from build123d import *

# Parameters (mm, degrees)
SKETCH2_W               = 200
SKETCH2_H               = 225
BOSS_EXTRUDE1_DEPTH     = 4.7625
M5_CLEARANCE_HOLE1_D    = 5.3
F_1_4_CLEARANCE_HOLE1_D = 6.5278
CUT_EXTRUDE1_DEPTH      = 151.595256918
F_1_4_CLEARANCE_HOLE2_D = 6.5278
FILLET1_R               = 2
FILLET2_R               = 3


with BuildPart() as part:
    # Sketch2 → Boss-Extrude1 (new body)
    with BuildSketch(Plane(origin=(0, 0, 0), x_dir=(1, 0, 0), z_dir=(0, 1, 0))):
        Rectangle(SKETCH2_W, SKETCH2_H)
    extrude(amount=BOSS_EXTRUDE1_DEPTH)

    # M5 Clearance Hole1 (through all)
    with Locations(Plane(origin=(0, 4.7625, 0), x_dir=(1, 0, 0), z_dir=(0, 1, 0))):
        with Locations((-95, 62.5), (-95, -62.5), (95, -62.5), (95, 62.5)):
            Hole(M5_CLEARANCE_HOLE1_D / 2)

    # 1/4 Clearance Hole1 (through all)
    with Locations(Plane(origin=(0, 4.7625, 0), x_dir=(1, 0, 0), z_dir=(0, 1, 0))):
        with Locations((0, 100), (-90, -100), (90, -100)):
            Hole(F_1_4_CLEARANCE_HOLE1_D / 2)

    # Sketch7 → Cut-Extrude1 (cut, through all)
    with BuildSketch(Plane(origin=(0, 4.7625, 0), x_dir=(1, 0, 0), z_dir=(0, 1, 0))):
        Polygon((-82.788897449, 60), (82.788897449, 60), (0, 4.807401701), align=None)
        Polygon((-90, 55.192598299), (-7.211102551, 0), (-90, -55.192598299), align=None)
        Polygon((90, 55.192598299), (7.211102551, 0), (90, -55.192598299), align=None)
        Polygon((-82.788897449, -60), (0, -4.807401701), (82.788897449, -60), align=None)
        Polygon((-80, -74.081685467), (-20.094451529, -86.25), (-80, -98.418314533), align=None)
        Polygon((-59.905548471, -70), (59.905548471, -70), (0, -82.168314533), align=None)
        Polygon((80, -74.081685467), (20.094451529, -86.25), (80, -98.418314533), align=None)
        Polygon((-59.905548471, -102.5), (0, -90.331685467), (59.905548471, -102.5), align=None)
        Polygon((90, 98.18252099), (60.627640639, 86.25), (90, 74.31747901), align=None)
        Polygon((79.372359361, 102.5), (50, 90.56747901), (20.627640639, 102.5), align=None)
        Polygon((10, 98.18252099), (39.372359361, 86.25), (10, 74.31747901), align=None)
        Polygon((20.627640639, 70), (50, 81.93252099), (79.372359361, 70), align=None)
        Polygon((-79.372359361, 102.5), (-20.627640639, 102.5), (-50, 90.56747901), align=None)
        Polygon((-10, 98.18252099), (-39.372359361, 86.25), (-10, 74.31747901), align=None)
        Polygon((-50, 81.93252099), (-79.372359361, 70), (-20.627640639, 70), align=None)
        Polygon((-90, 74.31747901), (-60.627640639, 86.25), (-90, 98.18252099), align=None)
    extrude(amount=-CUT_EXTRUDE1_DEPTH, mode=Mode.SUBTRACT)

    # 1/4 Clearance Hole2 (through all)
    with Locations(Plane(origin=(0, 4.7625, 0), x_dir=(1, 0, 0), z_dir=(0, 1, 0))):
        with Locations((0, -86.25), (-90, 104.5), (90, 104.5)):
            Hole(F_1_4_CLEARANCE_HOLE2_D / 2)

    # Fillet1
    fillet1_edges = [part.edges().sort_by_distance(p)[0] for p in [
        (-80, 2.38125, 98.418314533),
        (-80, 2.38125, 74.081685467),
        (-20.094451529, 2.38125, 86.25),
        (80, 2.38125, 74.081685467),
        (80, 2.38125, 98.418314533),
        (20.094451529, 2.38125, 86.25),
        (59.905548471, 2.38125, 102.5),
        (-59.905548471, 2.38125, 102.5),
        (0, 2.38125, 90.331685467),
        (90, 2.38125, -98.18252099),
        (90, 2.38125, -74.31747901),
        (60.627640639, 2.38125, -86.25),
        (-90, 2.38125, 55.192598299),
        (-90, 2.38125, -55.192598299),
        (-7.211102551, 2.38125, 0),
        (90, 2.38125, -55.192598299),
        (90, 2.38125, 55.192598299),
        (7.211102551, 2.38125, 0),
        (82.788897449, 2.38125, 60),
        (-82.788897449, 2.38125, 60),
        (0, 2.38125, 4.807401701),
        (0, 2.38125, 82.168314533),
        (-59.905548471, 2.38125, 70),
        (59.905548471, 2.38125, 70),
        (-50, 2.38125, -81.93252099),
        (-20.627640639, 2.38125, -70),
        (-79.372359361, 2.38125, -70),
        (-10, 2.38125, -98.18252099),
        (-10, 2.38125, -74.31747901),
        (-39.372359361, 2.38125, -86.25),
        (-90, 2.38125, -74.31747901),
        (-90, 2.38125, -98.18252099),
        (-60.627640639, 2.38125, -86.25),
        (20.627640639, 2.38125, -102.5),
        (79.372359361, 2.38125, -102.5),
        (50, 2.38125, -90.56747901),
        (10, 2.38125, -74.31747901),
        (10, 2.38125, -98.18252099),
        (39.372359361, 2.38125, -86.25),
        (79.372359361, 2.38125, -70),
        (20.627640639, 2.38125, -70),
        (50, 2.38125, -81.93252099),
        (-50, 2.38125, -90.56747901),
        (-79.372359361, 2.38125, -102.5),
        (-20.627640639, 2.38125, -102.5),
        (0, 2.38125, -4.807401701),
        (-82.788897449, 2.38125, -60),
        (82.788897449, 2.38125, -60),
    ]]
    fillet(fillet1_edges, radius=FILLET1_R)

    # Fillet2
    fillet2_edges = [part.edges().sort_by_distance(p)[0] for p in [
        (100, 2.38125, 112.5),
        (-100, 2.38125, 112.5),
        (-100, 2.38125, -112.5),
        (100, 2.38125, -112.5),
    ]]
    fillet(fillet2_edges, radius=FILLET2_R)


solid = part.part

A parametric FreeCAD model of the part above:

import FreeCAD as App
import Part
import Sketcher
from FreeCAD import Vector


def edges_at(feature, points):
    """Names of the edges that pass closest to the given points."""
    edges = feature.Shape.Edges
    near = lambda p: min(range(len(edges)), key=lambda i: edges[i].distToShape(Part.Vertex(*p))[0])
    return sorted({f"Edge{near(p) + 1}" for p in points})

doc = App.newDocument("Part")
body = doc.addObject("PartDesign::Body", "Body")

sketch1 = body.newObject("Sketcher::SketchObject", "Sketch")
sketch1.AttachmentSupport = (doc.getObject("XZ_Plane"), [""])
sketch1.MapMode = "FlatFace"
sketch1.addGeometry(Part.LineSegment(Vector(-100, -112, 0), Vector(-100, 112, 0)), False)
sketch1.addGeometry(Part.LineSegment(Vector(-100, 112, 0), Vector(100, 112, 0)), False)
sketch1.addGeometry(Part.LineSegment(Vector(100, 112, 0), Vector(100, -112, 0)), False)
sketch1.addGeometry(Part.LineSegment(Vector(100, -112, 0), Vector(-100, -112, 0)), False)
sketch1.addConstraint(Sketcher.Constraint("Coincident", 0, 2, 1, 1))
sketch1.addConstraint(Sketcher.Constraint("Coincident", 1, 2, 2, 1))
sketch1.addConstraint(Sketcher.Constraint("Coincident", 2, 2, 3, 1))
sketch1.addConstraint(Sketcher.Constraint("Coincident", 3, 2, 0, 1))
sketch1.addConstraint(Sketcher.Constraint("Vertical", 0))
sketch1.addConstraint(Sketcher.Constraint("Horizontal", 1))
sketch1.addConstraint(Sketcher.Constraint("Vertical", 2))
sketch1.addConstraint(Sketcher.Constraint("Horizontal", 3))
sketch1.addConstraint(Sketcher.Constraint("Symmetric", 0, 2, 2, 2, -1, 1))
sketch1.addConstraint(Sketcher.Constraint("DistanceX", 1, 1, 1, 2, 200.0))
sketch1.addConstraint(Sketcher.Constraint("DistanceY", 0, 1, 0, 2, 225.0))
pad1 = body.newObject("PartDesign::Pad", "Pad")
pad1.Profile = sketch1
pad1.Length = 4.7625
pad1.Reversed = True

sketch2 = body.newObject("Sketcher::SketchObject", "Sketch001")
sketch2.AttachmentSupport = (doc.getObject("XZ_Plane"), [""])
sketch2.MapMode = "FlatFace"
sketch2.AttachmentOffset = App.Placement(Vector(0, 0, -4.7625), App.Rotation())
sketch2.addGeometry(Part.Circle(Vector(-95, -62.5, 0), Vector(0, 0, 1), 2.6), False)
sketch2.addGeometry(Part.Circle(Vector(-95, 62.5, 0), Vector(0, 0, 1), 2.6), False)
sketch2.addGeometry(Part.Circle(Vector(95, 62.5, 0), Vector(0, 0, 1), 2.6), False)
sketch2.addGeometry(Part.Circle(Vector(95, -62.5, 0), Vector(0, 0, 1), 2.6), False)
sketch2.addConstraint(Sketcher.Constraint("Equal", 0, 1))
sketch2.addConstraint(Sketcher.Constraint("Equal", 1, 2))
sketch2.addConstraint(Sketcher.Constraint("Equal", 2, 3))
sketch2.addConstraint(Sketcher.Constraint("Symmetric", 0, 3, 2, 3, -1, 1))
sketch2.addConstraint(Sketcher.Constraint("Symmetric", 1, 3, 3, 3, -1, 1))
sketch2.addConstraint(Sketcher.Constraint("Symmetric", 1, 3, 2, 3, -2))
sketch2.addConstraint(Sketcher.Constraint("Diameter", 0, 5.3))
sketch2.addConstraint(Sketcher.Constraint("DistanceX", 0, 3, -1, 1, 95.0))
sketch2.addConstraint(Sketcher.Constraint("DistanceY", 0, 3, 1, 3, 125.0))
doc.recompute()
hole = body.newObject("PartDesign::Hole", "Hole")
hole.Profile = sketch2
hole.ThreadType = "None"
hole.Diameter = 5.3
hole.DepthType = "ThroughAll"
hole.Reversed = True

sketch3 = body.newObject("Sketcher::SketchObject", "Sketch002")
sketch3.AttachmentSupport = (doc.getObject("XZ_Plane"), [""])
sketch3.MapMode = "FlatFace"
sketch3.AttachmentOffset = App.Placement(Vector(0, 0, -4.7625), App.Rotation())
sketch3.addGeometry(Part.Circle(Vector(0, -100, 0), Vector(0, 0, 1), 3.3), False)
sketch3.addGeometry(Part.Circle(Vector(-90, 100, 0), Vector(0, 0, 1), 3.3), False)
sketch3.addGeometry(Part.Circle(Vector(90, 100, 0), Vector(0, 0, 1), 3.3), False)
sketch3.addConstraint(Sketcher.Constraint("Equal", 0, 1))
sketch3.addConstraint(Sketcher.Constraint("Equal", 1, 2))
sketch3.addConstraint(Sketcher.Constraint("Symmetric", 1, 3, 2, 3, -2))
sketch3.addConstraint(Sketcher.Constraint("PointOnObject", 0, 3, -2))
sketch3.addConstraint(Sketcher.Constraint("DistanceY", 0, 3, -1, 1, 100.0))
sketch3.addConstraint(Sketcher.Constraint("DistanceX", 1, 3, -1, 1, 90.0))
sketch3.addConstraint(Sketcher.Constraint("DistanceY", -1, 1, 1, 3, 100.0))
sketch3.addConstraint(Sketcher.Constraint("Diameter", 0, 6.5278))
doc.recompute()
hole2 = body.newObject("PartDesign::Hole", "Hole001")
hole2.Profile = sketch3
hole2.ThreadType = "None"
hole2.Diameter = 6.5278
hole2.DepthType = "ThroughAll"
hole2.Reversed = True

sketch4 = body.newObject("Sketcher::SketchObject", "Sketch003")
sketch4.AttachmentSupport = (doc.getObject("XZ_Plane"), [""])
sketch4.MapMode = "FlatFace"
sketch4.AttachmentOffset = App.Placement(Vector(0, 0, -4.7625), App.Rotation())
sketch4.addGeometry(Part.LineSegment(Vector(83, -60, 0), Vector(-83, -60, 0)), False)
sketch4.addGeometry(Part.LineSegment(Vector(-83, -60, 0), Vector(0, -5, 0)), False)
sketch4.addGeometry(Part.LineSegment(Vector(0, -5, 0), Vector(83, -60, 0)), False)
sketch4.addGeometry(Part.LineSegment(Vector(-7, 0, 0), Vector(-90, -55, 0)), False)
sketch4.addGeometry(Part.LineSegment(Vector(-90, -55, 0), Vector(-90, 55, 0)), False)
sketch4.addGeometry(Part.LineSegment(Vector(-90, 55, 0), Vector(-7, 0, 0)), False)
sketch4.addGeometry(Part.LineSegment(Vector(90, -55, 0), Vector(7, 0, 0)), False)
sketch4.addGeometry(Part.LineSegment(Vector(7, 0, 0), Vector(90, 55, 0)), False)
sketch4.addGeometry(Part.LineSegment(Vector(90, 55, 0), Vector(90, -55, 0)), False)
sketch4.addGeometry(Part.LineSegment(Vector(0, 5, 0), Vector(-83, 60, 0)), False)
sketch4.addGeometry(Part.LineSegment(Vector(-83, 60, 0), Vector(83, 60, 0)), False)
sketch4.addGeometry(Part.LineSegment(Vector(83, 60, 0), Vector(0, 5, 0)), False)
sketch4.addGeometry(Part.LineSegment(Vector(-20, 86, 0), Vector(-80, 74, 0)), False)
sketch4.addGeometry(Part.LineSegment(Vector(-80, 74, 0), Vector(-80, 98, 0)), False)
sketch4.addGeometry(Part.LineSegment(Vector(-80, 98, 0), Vector(-20, 86, 0)), False)
sketch4.addGeometry(Part.LineSegment(Vector(60, 70, 0), Vector(-60, 70, 0)), False)
sketch4.addGeometry(Part.LineSegment(Vector(-60, 70, 0), Vector(0, 82, 0)), False)
sketch4.addGeometry(Part.LineSegment(Vector(0, 82, 0), Vector(60, 70, 0)), False)
sketch4.addGeometry(Part.LineSegment(Vector(80, 74, 0), Vector(20, 86, 0)), False)
sketch4.addGeometry(Part.LineSegment(Vector(20, 86, 0), Vector(80, 98, 0)), False)
sketch4.addGeometry(Part.LineSegment(Vector(80, 98, 0), Vector(80, 74, 0)), False)
sketch4.addGeometry(Part.LineSegment(Vector(0, 90, 0), Vector(-60, 102, 0)), False)
sketch4.addGeometry(Part.LineSegment(Vector(-60, 102, 0), Vector(60, 102, 0)), False)
sketch4.addGeometry(Part.LineSegment(Vector(60, 102, 0), Vector(0, 90, 0)), False)
sketch4.addGeometry(Part.LineSegment(Vector(90, -98, 0), Vector(61, -86, 0)), False)
sketch4.addGeometry(Part.LineSegment(Vector(61, -86, 0), Vector(90, -74, 0)), False)
sketch4.addGeometry(Part.LineSegment(Vector(90, -74, 0), Vector(90, -98, 0)), False)
sketch4.addGeometry(Part.LineSegment(Vector(50, -91, 0), Vector(79, -102, 0)), False)
sketch4.addGeometry(Part.LineSegment(Vector(79, -102, 0), Vector(21, -102, 0)), False)
sketch4.addGeometry(Part.LineSegment(Vector(21, -102, 0), Vector(50, -91, 0)), False)
sketch4.addGeometry(Part.LineSegment(Vector(39, -86, 0), Vector(10, -98, 0)), False)
sketch4.addGeometry(Part.LineSegment(Vector(10, -98, 0), Vector(10, -74, 0)), False)
sketch4.addGeometry(Part.LineSegment(Vector(10, -74, 0), Vector(39, -86, 0)), False)
sketch4.addGeometry(Part.LineSegment(Vector(50, -82, 0), Vector(21, -70, 0)), False)
sketch4.addGeometry(Part.LineSegment(Vector(21, -70, 0), Vector(79, -70, 0)), False)
sketch4.addGeometry(Part.LineSegment(Vector(79, -70, 0), Vector(50, -82, 0)), False)
sketch4.addGeometry(Part.LineSegment(Vector(-21, -102, 0), Vector(-79, -102, 0)), False)
sketch4.addGeometry(Part.LineSegment(Vector(-79, -102, 0), Vector(-50, -91, 0)), False)
sketch4.addGeometry(Part.LineSegment(Vector(-50, -91, 0), Vector(-21, -102, 0)), False)
sketch4.addGeometry(Part.LineSegment(Vector(-10, -98, 0), Vector(-39, -86, 0)), False)
sketch4.addGeometry(Part.LineSegment(Vector(-39, -86, 0), Vector(-10, -74, 0)), False)
sketch4.addGeometry(Part.LineSegment(Vector(-10, -74, 0), Vector(-10, -98, 0)), False)
sketch4.addGeometry(Part.LineSegment(Vector(-50, -82, 0), Vector(-79, -70, 0)), False)
sketch4.addGeometry(Part.LineSegment(Vector(-79, -70, 0), Vector(-21, -70, 0)), False)
sketch4.addGeometry(Part.LineSegment(Vector(-21, -70, 0), Vector(-50, -82, 0)), False)
sketch4.addGeometry(Part.LineSegment(Vector(-90, -74, 0), Vector(-61, -86, 0)), False)
sketch4.addGeometry(Part.LineSegment(Vector(-61, -86, 0), Vector(-90, -98, 0)), False)
sketch4.addGeometry(Part.LineSegment(Vector(-90, -98, 0), Vector(-90, -74, 0)), False)
sketch4.addConstraint(Sketcher.Constraint("Coincident", 0, 2, 1, 1))
sketch4.addConstraint(Sketcher.Constraint("Coincident", 1, 2, 2, 1))
sketch4.addConstraint(Sketcher.Constraint("Coincident", 2, 2, 0, 1))
sketch4.addConstraint(Sketcher.Constraint("Coincident", 3, 2, 4, 1))
sketch4.addConstraint(Sketcher.Constraint("Coincident", 4, 2, 5, 1))
sketch4.addConstraint(Sketcher.Constraint("Coincident", 5, 2, 3, 1))
sketch4.addConstraint(Sketcher.Constraint("Coincident", 6, 2, 7, 1))
sketch4.addConstraint(Sketcher.Constraint("Coincident", 7, 2, 8, 1))
sketch4.addConstraint(Sketcher.Constraint("Coincident", 8, 2, 6, 1))
sketch4.addConstraint(Sketcher.Constraint("Coincident", 9, 2, 10, 1))
sketch4.addConstraint(Sketcher.Constraint("Coincident", 10, 2, 11, 1))
sketch4.addConstraint(Sketcher.Constraint("Coincident", 11, 2, 9, 1))
sketch4.addConstraint(Sketcher.Constraint("Coincident", 12, 2, 13, 1))
sketch4.addConstraint(Sketcher.Constraint("Coincident", 13, 2, 14, 1))
sketch4.addConstraint(Sketcher.Constraint("Coincident", 14, 2, 12, 1))
sketch4.addConstraint(Sketcher.Constraint("Coincident", 15, 2, 16, 1))
sketch4.addConstraint(Sketcher.Constraint("Coincident", 16, 2, 17, 1))
sketch4.addConstraint(Sketcher.Constraint("Coincident", 17, 2, 15, 1))
sketch4.addConstraint(Sketcher.Constraint("Coincident", 18, 2, 19, 1))
sketch4.addConstraint(Sketcher.Constraint("Coincident", 19, 2, 20, 1))
sketch4.addConstraint(Sketcher.Constraint("Coincident", 20, 2, 18, 1))
sketch4.addConstraint(Sketcher.Constraint("Coincident", 21, 2, 22, 1))
sketch4.addConstraint(Sketcher.Constraint("Coincident", 22, 2, 23, 1))
sketch4.addConstraint(Sketcher.Constraint("Coincident", 23, 2, 21, 1))
sketch4.addConstraint(Sketcher.Constraint("Coincident", 24, 2, 25, 1))
sketch4.addConstraint(Sketcher.Constraint("Coincident", 25, 2, 26, 1))
sketch4.addConstraint(Sketcher.Constraint("Coincident", 26, 2, 24, 1))
sketch4.addConstraint(Sketcher.Constraint("Coincident", 27, 2, 28, 1))
sketch4.addConstraint(Sketcher.Constraint("Coincident", 28, 2, 29, 1))
sketch4.addConstraint(Sketcher.Constraint("Coincident", 29, 2, 27, 1))
sketch4.addConstraint(Sketcher.Constraint("Coincident", 30, 2, 31, 1))
sketch4.addConstraint(Sketcher.Constraint("Coincident", 31, 2, 32, 1))
sketch4.addConstraint(Sketcher.Constraint("Coincident", 32, 2, 30, 1))
sketch4.addConstraint(Sketcher.Constraint("Coincident", 33, 2, 34, 1))
sketch4.addConstraint(Sketcher.Constraint("Coincident", 34, 2, 35, 1))
sketch4.addConstraint(Sketcher.Constraint("Coincident", 35, 2, 33, 1))
sketch4.addConstraint(Sketcher.Constraint("Coincident", 36, 2, 37, 1))
sketch4.addConstraint(Sketcher.Constraint("Coincident", 37, 2, 38, 1))
sketch4.addConstraint(Sketcher.Constraint("Coincident", 38, 2, 36, 1))
sketch4.addConstraint(Sketcher.Constraint("Coincident", 39, 2, 40, 1))
sketch4.addConstraint(Sketcher.Constraint("Coincident", 40, 2, 41, 1))
sketch4.addConstraint(Sketcher.Constraint("Coincident", 41, 2, 39, 1))
sketch4.addConstraint(Sketcher.Constraint("Coincident", 42, 2, 43, 1))
sketch4.addConstraint(Sketcher.Constraint("Coincident", 43, 2, 44, 1))
sketch4.addConstraint(Sketcher.Constraint("Coincident", 44, 2, 42, 1))
sketch4.addConstraint(Sketcher.Constraint("Coincident", 45, 2, 46, 1))
sketch4.addConstraint(Sketcher.Constraint("Coincident", 46, 2, 47, 1))
sketch4.addConstraint(Sketcher.Constraint("Coincident", 47, 2, 45, 1))
sketch4.addConstraint(Sketcher.Constraint("Horizontal", 0))
sketch4.addConstraint(Sketcher.Constraint("Vertical", 4))
sketch4.addConstraint(Sketcher.Constraint("Vertical", 8))
sketch4.addConstraint(Sketcher.Constraint("Horizontal", 10))
sketch4.addConstraint(Sketcher.Constraint("Vertical", 13))
sketch4.addConstraint(Sketcher.Constraint("Horizontal", 15))
sketch4.addConstraint(Sketcher.Constraint("Vertical", 20))
sketch4.addConstraint(Sketcher.Constraint("Horizontal", 22))
sketch4.addConstraint(Sketcher.Constraint("Vertical", 26))
sketch4.addConstraint(Sketcher.Constraint("Horizontal", 28))
sketch4.addConstraint(Sketcher.Constraint("Vertical", 31))
sketch4.addConstraint(Sketcher.Constraint("Horizontal", 34))
sketch4.addConstraint(Sketcher.Constraint("Horizontal", 36))
sketch4.addConstraint(Sketcher.Constraint("Vertical", 41))
sketch4.addConstraint(Sketcher.Constraint("Horizontal", 43))
sketch4.addConstraint(Sketcher.Constraint("Vertical", 47))
sketch4.addConstraint(Sketcher.Constraint("Symmetric", 5, 2, 6, 2, -1, 1))
sketch4.addConstraint(Sketcher.Constraint("Symmetric", 3, 2, 7, 2, -1, 1))
sketch4.addConstraint(Sketcher.Constraint("Symmetric", 2, 2, 9, 2, -1, 1))
sketch4.addConstraint(Sketcher.Constraint("Symmetric", 1, 2, 11, 2, -1, 1))
sketch4.addConstraint(Sketcher.Constraint("Symmetric", 14, 2, 18, 2, -2))
sketch4.addConstraint(Sketcher.Constraint("Symmetric", 13, 2, 19, 2, -2))
sketch4.addConstraint(Sketcher.Constraint("Symmetric", 27, 2, 36, 2, -2))
sketch4.addConstraint(Sketcher.Constraint("Symmetric", 29, 2, 37, 2, -2))
sketch4.addConstraint(Sketcher.Constraint("Symmetric", 32, 2, 39, 2, -2))
sketch4.addConstraint(Sketcher.Constraint("Symmetric", 31, 2, 40, 2, -2))
sketch4.addConstraint(Sketcher.Constraint("Symmetric", 34, 2, 42, 2, -2))
sketch4.addConstraint(Sketcher.Constraint("Symmetric", 35, 2, 44, 2, -2))
sketch4.addConstraint(Sketcher.Constraint("Symmetric", 24, 2, 45, 2, -2))
sketch4.addConstraint(Sketcher.Constraint("Symmetric", 26, 2, 46, 2, -2))
sketch4.addConstraint(Sketcher.Constraint("PointOnObject", 1, 2, -2))
sketch4.addConstraint(Sketcher.Constraint("PointOnObject", 5, 2, -1))
sketch4.addConstraint(Sketcher.Constraint("PointOnObject", 16, 2, -2))
sketch4.addConstraint(Sketcher.Constraint("PointOnObject", 23, 2, -2))
sketch4.addConstraint(Sketcher.Constraint("Parallel", 1, 3))
sketch4.addConstraint(Sketcher.Constraint("Parallel", 2, 5))
sketch4.addConstraint(Sketcher.Constraint("Parallel", 5, 6))
sketch4.addConstraint(Sketcher.Constraint("Parallel", 7, 11))
sketch4.addConstraint(Sketcher.Constraint("Parallel", 12, 16))
sketch4.addConstraint(Sketcher.Constraint("Parallel", 14, 17))
sketch4.addConstraint(Sketcher.Constraint("Parallel", 17, 18))
sketch4.addConstraint(Sketcher.Constraint("Parallel", 16, 19))
sketch4.addConstraint(Sketcher.Constraint("Parallel", 18, 21))
sketch4.addConstraint(Sketcher.Constraint("Parallel", 19, 23))
sketch4.addConstraint(Sketcher.Constraint("Parallel", 24, 27))
sketch4.addConstraint(Sketcher.Constraint("Parallel", 25, 29))
sketch4.addConstraint(Sketcher.Constraint("Parallel", 29, 30))
sketch4.addConstraint(Sketcher.Constraint("Parallel", 27, 32))
sketch4.addConstraint(Sketcher.Constraint("Parallel", 32, 33))
sketch4.addConstraint(Sketcher.Constraint("Parallel", 30, 35))
sketch4.addConstraint(Sketcher.Constraint("Parallel", 35, 37))
sketch4.addConstraint(Sketcher.Constraint("Parallel", 33, 38))
sketch4.addConstraint(Sketcher.Constraint("Parallel", 38, 39))
sketch4.addConstraint(Sketcher.Constraint("Parallel", 40, 44))
sketch4.addConstraint(Sketcher.Constraint("Parallel", 42, 45))
sketch4.addConstraint(Sketcher.Constraint("Horizontal", 4, 2, 7, 2))
sketch4.addConstraint(Sketcher.Constraint("Horizontal", 26, 2, 30, 2))
sketch4.addConstraint(Sketcher.Constraint("Horizontal", 25, 2, 31, 2))
sketch4.addConstraint(Sketcher.Constraint("Vertical", 15, 2, 21, 2))
sketch4.addConstraint(Sketcher.Constraint("Vertical", 8, 2, 25, 2))
sketch4.addConstraint(Sketcher.Constraint("Vertical", 28, 2, 33, 2))
sketch4.addConstraint(Sketcher.Constraint("Vertical", 27, 2, 34, 2))
sketch4.addConstraint(Sketcher.Constraint("Equal", 2, 3))
sketch4.addConstraint(Sketcher.Constraint("Equal", 14, 16))
sketch4.addConstraint(Sketcher.Constraint("Equal", 25, 27))
sketch4.addConstraint(Sketcher.Constraint("DistanceY", 0, 2, -1, 1, 60.0))
sketch4.addConstraint(Sketcher.Constraint("DistanceX", 3, 2, -1, 1, 90.0))
sketch4.addConstraint(Sketcher.Constraint("DistanceX", 12, 2, -1, 1, 80.0))
sketch4.addConstraint(Sketcher.Constraint("DistanceY", -1, 1, 15, 2, 70.0))
sketch4.addConstraint(Sketcher.Constraint("DistanceX", -1, 1, 29, 2, 50.0))
sketch4.addConstraint(Sketcher.Constraint("DistanceX", -1, 1, 30, 2, 10.0))
sketch4.addConstraint(Sketcher.Constraint("DistanceY", 33, 2, -1, 1, 70.0))
sketch4.addConstraint(Sketcher.Constraint("DistanceY", -1, 1, 21, 2, 102.5))
sketch4.addConstraint(Sketcher.Constraint("DistanceY", 27, 2, -1, 1, 102.5))
sketch4.addConstraint(Sketcher.Constraint("DistanceY", -1, 1, 14, 2, 86.25))
sketch4.addConstraint(Sketcher.Constraint("DistanceY", 24, 2, -1, 1, 86.25))
sketch4.addConstraint(Sketcher.Constraint("Distance", 12, 61.128902))
sketch4.addConstraint(Sketcher.Constraint("DistanceX", 28, 2, 28, 1, 58.744719))
sketch4.addConstraint(Sketcher.Constraint("DistanceY", 13, 1, 13, 2, 24.336629))
sketch4.addConstraint(Sketcher.Constraint("DistanceY", 26, 2, 26, 1, 23.865042))
sketch4.addConstraint(Sketcher.Constraint("DistanceY", 1, 2, -1, 1, 4.807402))
sketch4.addConstraint(Sketcher.Constraint("Distance", 1, 99.499872))
pocket1 = body.newObject("PartDesign::Pocket", "Pocket")
pocket1.Profile = sketch4
pocket1.Type = "ThroughAll"
pocket1.Reversed = True

sketch5 = body.newObject("Sketcher::SketchObject", "Sketch004")
sketch5.AttachmentSupport = (doc.getObject("XZ_Plane"), [""])
sketch5.MapMode = "FlatFace"
sketch5.AttachmentOffset = App.Placement(Vector(0, 0, -4.7625), App.Rotation())
sketch5.addGeometry(Part.Circle(Vector(0, 86.2, 0), Vector(0, 0, 1), 3.3), False)
sketch5.addGeometry(Part.Circle(Vector(-90, -104.5, 0), Vector(0, 0, 1), 3.3), False)
sketch5.addGeometry(Part.Circle(Vector(90, -104.5, 0), Vector(0, 0, 1), 3.3), False)
sketch5.addConstraint(Sketcher.Constraint("Equal", 0, 1))
sketch5.addConstraint(Sketcher.Constraint("Equal", 1, 2))
sketch5.addConstraint(Sketcher.Constraint("Symmetric", 1, 3, 2, 3, -2))
sketch5.addConstraint(Sketcher.Constraint("PointOnObject", 0, 3, -2))
sketch5.addConstraint(Sketcher.Constraint("DistanceX", 1, 3, -1, 1, 90.0))
sketch5.addConstraint(Sketcher.Constraint("Diameter", 0, 6.5278))
sketch5.addConstraint(Sketcher.Constraint("DistanceY", 1, 3, -1, 1, 104.5))
sketch5.addConstraint(Sketcher.Constraint("DistanceY", -1, 1, 0, 3, 86.25))
doc.recompute()
hole3 = body.newObject("PartDesign::Hole", "Hole002")
hole3.Profile = sketch5
hole3.ThreadType = "None"
hole3.Diameter = 6.5278
hole3.DepthType = "ThroughAll"
hole3.Reversed = True
doc.recompute()

fillet = body.newObject("PartDesign::Fillet", "Fillet")
fillet.Base = (hole3, edges_at(hole3, [
    (-80, 2.381, 98.418),
    (-80, 2.381, 74.082),
    (-20.094, 2.381, 86.25),
    (80, 2.381, 74.082),
    (80, 2.381, 98.418),
    (20.094, 2.381, 86.25),
    (59.906, 2.381, 102.5),
    (-59.906, 2.381, 102.5),
    (0, 2.381, 90.332),
    (90, 2.381, -98.183),
    (90, 2.381, -74.317),
    (60.628, 2.381, -86.25),
    (-90, 2.381, 55.193),
    (-90, 2.381, -55.193),
    (-7.211, 2.381, 0),
    (90, 2.381, -55.193),
    (90, 2.381, 55.193),
    (7.211, 2.381, 0),
    (82.789, 2.381, 60),
    (-82.789, 2.381, 60),
    (0, 2.381, 4.807),
    (0, 2.381, 82.168),
    (-59.906, 2.381, 70),
    (59.906, 2.381, 70),
    (-50, 2.381, -81.933),
    (-20.628, 2.381, -70),
    (-79.372, 2.381, -70),
    (-10, 2.381, -98.183),
    (-10, 2.381, -74.317),
    (-39.372, 2.381, -86.25),
    (-90, 2.381, -74.317),
    (-90, 2.381, -98.183),
    (-60.628, 2.381, -86.25),
    (20.628, 2.381, -102.5),
    (79.372, 2.381, -102.5),
    (50, 2.381, -90.567),
    (10, 2.381, -74.317),
    (10, 2.381, -98.183),
    (39.372, 2.381, -86.25),
    (79.372, 2.381, -70),
    (20.628, 2.381, -70),
    (50, 2.381, -81.933),
    (-50, 2.381, -90.567),
    (-79.372, 2.381, -102.5),
    (-20.628, 2.381, -102.5),
    (0, 2.381, -4.807),
    (-82.789, 2.381, -60),
    (82.789, 2.381, -60),
]))
fillet.Radius = 2
doc.recompute()

fillet2 = body.newObject("PartDesign::Fillet", "Fillet001")
fillet2.Base = (fillet, edges_at(fillet, [
    (100, 2.381, 112.5),
    (-100, 2.381, 112.5),
    (-100, 2.381, -112.5),
    (100, 2.381, -112.5),
]))
fillet2.Radius = 3

doc.recompute()
